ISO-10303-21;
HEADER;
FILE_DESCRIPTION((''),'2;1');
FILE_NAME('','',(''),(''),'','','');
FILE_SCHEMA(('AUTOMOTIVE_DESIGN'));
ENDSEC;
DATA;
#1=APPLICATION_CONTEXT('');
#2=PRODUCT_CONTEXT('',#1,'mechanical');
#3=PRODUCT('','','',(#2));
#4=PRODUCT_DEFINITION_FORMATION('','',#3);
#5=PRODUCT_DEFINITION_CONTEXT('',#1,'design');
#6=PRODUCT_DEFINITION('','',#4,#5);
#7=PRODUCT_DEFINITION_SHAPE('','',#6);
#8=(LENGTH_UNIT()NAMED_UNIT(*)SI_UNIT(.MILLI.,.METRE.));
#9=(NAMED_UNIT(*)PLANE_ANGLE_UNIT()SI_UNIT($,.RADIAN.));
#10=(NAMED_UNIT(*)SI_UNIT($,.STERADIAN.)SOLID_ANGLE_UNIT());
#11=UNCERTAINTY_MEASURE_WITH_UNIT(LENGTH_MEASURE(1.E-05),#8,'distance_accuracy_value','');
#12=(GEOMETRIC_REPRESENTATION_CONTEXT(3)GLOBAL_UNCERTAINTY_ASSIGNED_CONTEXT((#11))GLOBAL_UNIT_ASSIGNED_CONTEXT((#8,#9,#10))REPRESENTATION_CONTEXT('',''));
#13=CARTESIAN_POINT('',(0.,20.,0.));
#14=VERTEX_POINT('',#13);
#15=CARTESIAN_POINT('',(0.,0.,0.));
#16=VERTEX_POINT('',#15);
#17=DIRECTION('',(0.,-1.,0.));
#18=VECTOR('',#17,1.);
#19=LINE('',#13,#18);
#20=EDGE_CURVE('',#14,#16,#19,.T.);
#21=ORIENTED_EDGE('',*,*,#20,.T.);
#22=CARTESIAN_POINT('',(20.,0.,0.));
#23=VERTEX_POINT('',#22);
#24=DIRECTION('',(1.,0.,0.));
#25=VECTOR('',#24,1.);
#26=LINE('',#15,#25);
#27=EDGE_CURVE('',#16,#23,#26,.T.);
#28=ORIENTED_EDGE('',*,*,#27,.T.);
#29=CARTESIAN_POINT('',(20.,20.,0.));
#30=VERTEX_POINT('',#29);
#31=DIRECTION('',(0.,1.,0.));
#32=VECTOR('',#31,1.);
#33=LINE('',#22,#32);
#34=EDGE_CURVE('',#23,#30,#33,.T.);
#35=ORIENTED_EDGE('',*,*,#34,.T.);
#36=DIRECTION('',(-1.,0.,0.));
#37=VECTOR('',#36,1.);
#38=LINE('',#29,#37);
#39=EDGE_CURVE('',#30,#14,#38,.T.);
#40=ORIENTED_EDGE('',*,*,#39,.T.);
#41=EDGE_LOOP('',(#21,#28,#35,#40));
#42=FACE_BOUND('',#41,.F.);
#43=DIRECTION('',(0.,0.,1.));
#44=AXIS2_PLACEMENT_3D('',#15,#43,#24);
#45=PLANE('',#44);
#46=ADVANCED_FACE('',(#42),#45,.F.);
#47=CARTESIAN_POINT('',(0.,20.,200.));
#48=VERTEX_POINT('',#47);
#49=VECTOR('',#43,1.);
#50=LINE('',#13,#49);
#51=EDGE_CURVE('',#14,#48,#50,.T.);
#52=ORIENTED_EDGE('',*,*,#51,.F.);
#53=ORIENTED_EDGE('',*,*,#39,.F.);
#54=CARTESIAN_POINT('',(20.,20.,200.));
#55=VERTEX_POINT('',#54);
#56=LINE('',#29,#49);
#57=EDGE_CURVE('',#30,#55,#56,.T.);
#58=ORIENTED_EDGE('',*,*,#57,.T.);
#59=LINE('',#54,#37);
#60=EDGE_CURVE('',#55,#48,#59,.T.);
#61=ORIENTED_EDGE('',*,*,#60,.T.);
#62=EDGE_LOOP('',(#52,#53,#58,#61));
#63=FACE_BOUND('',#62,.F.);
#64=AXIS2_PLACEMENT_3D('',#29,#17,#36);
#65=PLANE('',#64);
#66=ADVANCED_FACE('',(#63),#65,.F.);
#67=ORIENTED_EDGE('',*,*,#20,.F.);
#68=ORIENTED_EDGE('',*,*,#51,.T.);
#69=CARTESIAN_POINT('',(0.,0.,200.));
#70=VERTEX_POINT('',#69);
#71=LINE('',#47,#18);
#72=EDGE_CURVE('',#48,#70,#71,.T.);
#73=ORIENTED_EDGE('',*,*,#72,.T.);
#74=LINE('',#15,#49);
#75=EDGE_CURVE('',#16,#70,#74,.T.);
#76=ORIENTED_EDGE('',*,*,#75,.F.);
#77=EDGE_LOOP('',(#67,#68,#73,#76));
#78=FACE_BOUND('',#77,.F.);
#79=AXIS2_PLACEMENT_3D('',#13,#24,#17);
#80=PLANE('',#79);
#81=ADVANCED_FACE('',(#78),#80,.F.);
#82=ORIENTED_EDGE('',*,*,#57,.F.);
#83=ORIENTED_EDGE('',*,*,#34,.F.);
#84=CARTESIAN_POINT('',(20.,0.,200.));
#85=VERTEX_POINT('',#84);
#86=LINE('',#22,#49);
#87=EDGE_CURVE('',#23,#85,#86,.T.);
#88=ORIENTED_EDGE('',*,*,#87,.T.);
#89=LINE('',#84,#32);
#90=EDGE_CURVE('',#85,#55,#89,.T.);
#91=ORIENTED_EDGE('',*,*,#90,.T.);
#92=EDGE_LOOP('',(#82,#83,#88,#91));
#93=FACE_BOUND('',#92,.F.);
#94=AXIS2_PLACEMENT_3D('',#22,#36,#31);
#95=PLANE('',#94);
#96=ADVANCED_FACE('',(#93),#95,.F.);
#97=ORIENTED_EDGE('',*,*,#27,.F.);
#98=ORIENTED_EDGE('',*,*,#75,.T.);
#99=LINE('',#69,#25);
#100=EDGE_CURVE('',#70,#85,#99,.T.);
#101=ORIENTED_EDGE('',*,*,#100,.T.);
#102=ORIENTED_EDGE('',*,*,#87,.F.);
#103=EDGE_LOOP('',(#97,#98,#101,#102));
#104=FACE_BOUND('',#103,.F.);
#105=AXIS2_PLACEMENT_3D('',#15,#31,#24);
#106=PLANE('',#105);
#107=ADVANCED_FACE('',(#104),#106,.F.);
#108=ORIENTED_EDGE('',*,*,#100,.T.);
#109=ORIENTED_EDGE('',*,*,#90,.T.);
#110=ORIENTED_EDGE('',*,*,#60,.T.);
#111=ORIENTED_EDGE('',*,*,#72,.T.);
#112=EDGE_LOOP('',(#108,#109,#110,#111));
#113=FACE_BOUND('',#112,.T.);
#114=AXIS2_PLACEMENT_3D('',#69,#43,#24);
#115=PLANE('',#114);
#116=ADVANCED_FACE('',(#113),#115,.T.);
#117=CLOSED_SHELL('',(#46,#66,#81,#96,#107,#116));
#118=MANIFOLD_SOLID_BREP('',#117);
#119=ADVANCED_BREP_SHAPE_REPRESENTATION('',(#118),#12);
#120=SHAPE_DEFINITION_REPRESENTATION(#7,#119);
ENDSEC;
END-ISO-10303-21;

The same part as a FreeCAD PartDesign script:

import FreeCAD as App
import Part
import Sketcher
Q = App.Units.Quantity


def add_polygon(sketch, points):
    """Adds a closed chain of lines whose ends are joined by coincident constraints."""
    first, n = sketch.GeometryCount, len(points)
    for a, b in zip(points, points[1:] + points[:1]):
        sketch.addGeometry(Part.LineSegment(App.Vector(*a, 0), App.Vector(*b, 0)), False)
    for i in range(n):
        sketch.addConstraint(Sketcher.Constraint("Coincident", first + i, 2, first + (i + 1) % n, 1))

doc = App.newDocument("Part")
body = doc.addObject("PartDesign::Body", "Body")

# Sketch on XY plane
sketch1 = doc.addObject("Sketcher::SketchObject", "Sketch")
body.addObject(sketch1)
sketch1.AttachmentSupport = (doc.XY_Plane, [""])
sketch1.MapMode = "FlatFace"
add_polygon(sketch1, [(0, 20), (0, 0), (20, 0), (20, 20)])  # lines 0-3
sketch1.addConstraint([
    Sketcher.Constraint("Vertical", 0),
    Sketcher.Constraint("Horizontal", 1),
    Sketcher.Constraint("Vertical", 2),
    Sketcher.Constraint("Horizontal", 3),
    Sketcher.Constraint("Coincident", 0, 2, -1, 1),
    Sketcher.Constraint("Equal", 3, 0),
    Sketcher.Constraint("DistanceX", 1, 1, 1, 2, Q("20 mm")),
])
pad1 = doc.addObject("PartDesign::Pad", "Pad")
body.addObject(pad1)
pad1.Profile = sketch1
pad1.Length = 200

doc.recompute()
